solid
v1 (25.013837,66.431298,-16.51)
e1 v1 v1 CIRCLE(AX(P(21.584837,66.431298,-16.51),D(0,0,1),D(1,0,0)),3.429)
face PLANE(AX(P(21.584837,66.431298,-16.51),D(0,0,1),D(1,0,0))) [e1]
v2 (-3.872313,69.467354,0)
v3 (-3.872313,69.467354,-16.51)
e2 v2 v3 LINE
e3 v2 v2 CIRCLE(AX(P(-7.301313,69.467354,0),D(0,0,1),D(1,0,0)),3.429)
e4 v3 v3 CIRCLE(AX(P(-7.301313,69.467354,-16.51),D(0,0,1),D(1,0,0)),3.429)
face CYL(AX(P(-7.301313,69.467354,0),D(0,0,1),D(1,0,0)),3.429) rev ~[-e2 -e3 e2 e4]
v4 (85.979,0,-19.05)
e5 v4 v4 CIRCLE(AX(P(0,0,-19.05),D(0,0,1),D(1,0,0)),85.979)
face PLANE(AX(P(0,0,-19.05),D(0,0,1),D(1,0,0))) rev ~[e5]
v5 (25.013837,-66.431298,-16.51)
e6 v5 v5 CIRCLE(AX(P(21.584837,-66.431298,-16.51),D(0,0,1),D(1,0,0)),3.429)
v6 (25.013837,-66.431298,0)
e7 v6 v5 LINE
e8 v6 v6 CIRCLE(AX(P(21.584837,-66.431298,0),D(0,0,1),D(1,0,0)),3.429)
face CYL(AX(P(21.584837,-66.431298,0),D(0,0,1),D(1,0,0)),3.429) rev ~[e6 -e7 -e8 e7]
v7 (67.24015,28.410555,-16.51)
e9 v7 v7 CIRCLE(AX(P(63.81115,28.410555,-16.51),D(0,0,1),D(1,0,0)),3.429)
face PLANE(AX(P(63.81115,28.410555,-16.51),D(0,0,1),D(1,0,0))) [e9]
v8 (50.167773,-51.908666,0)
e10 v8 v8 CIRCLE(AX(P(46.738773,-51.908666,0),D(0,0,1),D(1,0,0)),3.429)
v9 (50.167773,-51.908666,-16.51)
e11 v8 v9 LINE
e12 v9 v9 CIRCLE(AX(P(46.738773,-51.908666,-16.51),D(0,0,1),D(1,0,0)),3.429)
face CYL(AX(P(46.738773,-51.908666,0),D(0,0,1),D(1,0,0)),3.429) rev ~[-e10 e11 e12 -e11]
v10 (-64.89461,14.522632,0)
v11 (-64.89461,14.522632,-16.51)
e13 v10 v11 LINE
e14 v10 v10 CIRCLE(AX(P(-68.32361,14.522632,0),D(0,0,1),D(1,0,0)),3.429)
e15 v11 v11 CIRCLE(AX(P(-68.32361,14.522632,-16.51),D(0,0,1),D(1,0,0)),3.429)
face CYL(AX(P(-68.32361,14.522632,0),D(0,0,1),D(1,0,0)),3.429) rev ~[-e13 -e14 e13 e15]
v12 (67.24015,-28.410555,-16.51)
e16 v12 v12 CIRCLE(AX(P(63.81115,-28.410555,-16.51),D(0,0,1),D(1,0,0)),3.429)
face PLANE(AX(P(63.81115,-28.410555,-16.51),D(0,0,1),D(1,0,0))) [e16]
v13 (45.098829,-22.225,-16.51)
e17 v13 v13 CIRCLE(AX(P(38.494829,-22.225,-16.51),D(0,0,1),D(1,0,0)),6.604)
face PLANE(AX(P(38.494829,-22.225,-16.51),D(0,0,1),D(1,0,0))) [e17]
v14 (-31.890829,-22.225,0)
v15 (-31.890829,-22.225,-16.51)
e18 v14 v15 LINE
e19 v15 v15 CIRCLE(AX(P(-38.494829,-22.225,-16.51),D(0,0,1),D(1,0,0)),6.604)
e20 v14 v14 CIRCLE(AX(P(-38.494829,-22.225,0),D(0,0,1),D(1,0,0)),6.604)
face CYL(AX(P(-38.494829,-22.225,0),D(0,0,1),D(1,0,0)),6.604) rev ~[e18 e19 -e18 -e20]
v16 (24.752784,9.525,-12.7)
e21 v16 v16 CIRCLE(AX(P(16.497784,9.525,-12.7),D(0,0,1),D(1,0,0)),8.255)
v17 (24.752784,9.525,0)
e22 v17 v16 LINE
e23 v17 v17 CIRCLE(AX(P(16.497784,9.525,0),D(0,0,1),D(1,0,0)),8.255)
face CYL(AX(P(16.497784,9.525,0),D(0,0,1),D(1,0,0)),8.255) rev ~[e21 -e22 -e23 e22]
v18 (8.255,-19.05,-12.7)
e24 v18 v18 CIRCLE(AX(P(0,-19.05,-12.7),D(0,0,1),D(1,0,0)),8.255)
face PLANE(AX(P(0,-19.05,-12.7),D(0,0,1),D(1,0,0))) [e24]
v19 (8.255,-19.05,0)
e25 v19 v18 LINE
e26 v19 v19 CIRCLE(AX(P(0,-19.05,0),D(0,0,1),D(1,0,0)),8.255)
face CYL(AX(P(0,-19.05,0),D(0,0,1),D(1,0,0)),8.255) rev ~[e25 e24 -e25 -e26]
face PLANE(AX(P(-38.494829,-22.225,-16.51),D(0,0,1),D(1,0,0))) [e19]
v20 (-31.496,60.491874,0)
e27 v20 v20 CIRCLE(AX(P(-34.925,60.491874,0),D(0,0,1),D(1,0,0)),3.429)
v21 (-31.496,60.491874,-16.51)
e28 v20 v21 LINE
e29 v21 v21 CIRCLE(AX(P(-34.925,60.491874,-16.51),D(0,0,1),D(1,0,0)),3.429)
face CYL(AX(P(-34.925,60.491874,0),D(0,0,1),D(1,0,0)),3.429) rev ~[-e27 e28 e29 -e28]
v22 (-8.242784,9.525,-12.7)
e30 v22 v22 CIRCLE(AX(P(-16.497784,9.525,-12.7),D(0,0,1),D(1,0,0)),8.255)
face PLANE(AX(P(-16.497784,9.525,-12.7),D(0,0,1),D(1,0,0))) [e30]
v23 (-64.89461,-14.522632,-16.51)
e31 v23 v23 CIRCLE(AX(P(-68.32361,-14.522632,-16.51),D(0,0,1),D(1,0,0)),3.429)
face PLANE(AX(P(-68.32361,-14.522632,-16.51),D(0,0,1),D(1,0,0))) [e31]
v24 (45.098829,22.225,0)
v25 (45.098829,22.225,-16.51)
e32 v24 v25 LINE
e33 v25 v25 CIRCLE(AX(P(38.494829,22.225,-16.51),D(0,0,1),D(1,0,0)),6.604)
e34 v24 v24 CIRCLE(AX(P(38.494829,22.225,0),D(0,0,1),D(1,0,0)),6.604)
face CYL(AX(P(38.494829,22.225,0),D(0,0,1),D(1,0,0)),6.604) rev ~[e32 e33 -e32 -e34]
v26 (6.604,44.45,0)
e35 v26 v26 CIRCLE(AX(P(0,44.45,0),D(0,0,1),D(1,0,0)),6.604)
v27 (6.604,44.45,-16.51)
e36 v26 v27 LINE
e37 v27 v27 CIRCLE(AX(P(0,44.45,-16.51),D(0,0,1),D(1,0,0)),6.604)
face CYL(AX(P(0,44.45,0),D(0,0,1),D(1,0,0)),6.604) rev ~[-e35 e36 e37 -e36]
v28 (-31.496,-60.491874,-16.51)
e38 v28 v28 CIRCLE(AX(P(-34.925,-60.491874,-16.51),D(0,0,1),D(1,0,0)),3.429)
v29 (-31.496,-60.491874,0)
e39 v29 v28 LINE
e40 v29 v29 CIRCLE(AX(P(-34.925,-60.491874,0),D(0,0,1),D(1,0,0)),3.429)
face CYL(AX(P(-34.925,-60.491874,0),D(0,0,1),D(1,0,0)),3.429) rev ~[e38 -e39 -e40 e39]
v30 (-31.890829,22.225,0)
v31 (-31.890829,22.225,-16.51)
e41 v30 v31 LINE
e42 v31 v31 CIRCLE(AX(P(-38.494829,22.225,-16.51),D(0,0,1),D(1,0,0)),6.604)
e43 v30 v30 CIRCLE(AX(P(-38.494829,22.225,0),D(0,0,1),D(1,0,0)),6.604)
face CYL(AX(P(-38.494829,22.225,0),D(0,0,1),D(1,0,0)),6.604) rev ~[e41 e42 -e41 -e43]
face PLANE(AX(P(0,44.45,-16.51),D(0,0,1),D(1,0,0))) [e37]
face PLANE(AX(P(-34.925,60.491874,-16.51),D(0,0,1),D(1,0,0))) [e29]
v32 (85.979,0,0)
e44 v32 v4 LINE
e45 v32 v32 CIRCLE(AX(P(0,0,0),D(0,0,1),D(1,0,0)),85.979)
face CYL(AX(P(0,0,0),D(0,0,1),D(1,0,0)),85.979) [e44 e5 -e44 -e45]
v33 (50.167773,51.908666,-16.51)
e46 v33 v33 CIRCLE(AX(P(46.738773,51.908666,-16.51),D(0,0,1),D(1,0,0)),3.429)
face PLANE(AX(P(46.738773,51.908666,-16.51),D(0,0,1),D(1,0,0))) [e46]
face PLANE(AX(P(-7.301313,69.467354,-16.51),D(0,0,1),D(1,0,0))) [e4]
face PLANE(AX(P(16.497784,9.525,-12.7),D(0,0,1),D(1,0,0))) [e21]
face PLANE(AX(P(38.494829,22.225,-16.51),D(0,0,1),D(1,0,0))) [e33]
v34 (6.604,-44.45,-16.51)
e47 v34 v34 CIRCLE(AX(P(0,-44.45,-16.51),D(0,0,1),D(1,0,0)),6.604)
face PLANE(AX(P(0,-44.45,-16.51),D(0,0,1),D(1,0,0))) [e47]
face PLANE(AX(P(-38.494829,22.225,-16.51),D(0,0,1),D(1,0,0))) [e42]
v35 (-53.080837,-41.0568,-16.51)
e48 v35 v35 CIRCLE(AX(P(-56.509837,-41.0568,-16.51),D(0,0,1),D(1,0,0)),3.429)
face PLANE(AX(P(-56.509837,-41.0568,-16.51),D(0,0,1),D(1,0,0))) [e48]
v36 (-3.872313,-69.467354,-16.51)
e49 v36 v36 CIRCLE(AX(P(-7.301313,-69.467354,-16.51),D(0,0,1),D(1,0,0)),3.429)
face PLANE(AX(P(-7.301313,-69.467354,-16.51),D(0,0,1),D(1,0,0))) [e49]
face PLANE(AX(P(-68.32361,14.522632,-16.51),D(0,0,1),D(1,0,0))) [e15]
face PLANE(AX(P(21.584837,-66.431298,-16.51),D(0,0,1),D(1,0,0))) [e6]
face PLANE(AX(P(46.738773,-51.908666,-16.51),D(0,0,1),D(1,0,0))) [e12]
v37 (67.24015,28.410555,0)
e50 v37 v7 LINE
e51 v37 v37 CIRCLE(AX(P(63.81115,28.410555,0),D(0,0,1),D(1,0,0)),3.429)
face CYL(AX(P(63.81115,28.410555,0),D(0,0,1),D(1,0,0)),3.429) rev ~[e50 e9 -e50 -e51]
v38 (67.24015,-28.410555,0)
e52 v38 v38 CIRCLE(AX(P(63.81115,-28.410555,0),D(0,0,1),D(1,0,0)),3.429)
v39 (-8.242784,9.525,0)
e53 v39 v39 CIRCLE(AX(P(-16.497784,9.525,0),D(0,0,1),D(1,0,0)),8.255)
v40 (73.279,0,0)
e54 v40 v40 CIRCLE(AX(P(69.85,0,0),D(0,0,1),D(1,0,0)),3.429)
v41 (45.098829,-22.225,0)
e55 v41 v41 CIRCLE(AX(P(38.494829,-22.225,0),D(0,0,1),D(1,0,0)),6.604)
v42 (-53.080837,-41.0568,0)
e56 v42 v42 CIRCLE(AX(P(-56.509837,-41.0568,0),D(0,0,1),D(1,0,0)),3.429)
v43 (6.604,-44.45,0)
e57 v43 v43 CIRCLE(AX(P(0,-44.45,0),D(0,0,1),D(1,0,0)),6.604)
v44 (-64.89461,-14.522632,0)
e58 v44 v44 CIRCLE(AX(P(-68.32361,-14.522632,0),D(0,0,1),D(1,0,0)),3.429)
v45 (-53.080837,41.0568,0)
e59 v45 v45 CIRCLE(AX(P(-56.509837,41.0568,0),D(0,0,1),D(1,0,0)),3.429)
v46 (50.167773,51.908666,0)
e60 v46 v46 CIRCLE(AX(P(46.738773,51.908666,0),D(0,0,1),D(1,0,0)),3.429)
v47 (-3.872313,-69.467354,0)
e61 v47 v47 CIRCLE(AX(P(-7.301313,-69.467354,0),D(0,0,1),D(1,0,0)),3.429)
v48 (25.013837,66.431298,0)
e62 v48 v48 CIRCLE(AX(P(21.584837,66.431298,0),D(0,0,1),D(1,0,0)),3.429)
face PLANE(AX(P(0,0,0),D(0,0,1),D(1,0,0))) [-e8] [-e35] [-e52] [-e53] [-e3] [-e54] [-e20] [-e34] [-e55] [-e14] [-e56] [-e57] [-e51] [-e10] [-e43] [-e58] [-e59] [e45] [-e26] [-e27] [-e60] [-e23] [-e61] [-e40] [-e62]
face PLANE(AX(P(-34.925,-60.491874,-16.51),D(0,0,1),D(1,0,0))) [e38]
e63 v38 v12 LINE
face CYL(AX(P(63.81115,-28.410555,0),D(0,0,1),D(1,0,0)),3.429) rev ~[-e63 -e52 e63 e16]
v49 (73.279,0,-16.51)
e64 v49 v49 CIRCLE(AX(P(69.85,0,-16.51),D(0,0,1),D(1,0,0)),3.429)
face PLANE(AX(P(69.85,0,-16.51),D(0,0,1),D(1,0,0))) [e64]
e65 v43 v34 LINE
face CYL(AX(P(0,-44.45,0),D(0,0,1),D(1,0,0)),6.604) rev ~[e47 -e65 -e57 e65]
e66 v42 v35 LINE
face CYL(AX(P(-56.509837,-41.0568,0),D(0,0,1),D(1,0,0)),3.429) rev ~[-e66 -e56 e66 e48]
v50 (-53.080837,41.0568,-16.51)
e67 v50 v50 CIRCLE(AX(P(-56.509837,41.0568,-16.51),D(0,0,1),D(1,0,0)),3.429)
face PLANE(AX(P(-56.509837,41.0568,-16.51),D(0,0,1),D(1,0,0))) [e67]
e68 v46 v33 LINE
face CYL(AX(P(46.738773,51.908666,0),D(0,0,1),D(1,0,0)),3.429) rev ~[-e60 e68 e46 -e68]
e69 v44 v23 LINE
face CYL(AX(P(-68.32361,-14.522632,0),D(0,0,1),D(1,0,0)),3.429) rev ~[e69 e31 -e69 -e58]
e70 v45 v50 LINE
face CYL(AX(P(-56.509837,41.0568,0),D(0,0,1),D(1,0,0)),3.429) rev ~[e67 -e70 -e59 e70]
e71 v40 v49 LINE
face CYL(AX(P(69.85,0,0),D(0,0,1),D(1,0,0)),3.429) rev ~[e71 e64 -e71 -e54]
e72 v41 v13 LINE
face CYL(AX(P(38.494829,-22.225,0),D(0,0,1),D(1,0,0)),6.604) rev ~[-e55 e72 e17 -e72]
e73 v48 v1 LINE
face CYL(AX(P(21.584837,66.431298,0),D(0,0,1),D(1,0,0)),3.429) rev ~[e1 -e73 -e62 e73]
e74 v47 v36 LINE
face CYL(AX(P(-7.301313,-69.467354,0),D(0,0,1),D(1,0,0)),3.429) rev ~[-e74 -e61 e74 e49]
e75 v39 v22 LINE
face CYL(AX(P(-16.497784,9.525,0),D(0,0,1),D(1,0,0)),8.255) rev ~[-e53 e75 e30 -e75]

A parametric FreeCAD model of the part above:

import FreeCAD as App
import Part
import Sketcher

V = App.Vector
Q = App.Units.Quantity

doc = App.newDocument("Part")
params = doc.addObject("Spreadsheet::Sheet", "Params")
for row, (alias, value) in enumerate([
    ("sketch1_diameter", "6.77 in"),
    ("pad1_length", "0.75 in"),
    ("sketch2_diameter", "0.27 in"),
    ("sketch2_diameter2", "0.52 in"),
    ("pocket1_length", "0.65 in"),
    ("sketch3_diameter", "0.65 in"),
    ("pocket2_length", "0.5 in"),
], start=1):
    params.set(f"A{row}", alias)
    params.set(f"B{row}", "=" + value)
    params.setAlias(f"B{row}", alias)

body = doc.addObject("PartDesign::Body", "Body")

# Sketch on XY plane
sketch1 = body.newObject("Sketcher::SketchObject", "Sketch")
sketch1.AttachmentSupport = (doc.getObject("XY_Plane"), [""])
sketch1.MapMode = "FlatFace"
sketch1.addGeometry(Part.Circle(V(0, 0, 0), V(0, 0, 1), 86), False)
sketch1.addConstraint(Sketcher.Constraint("Coincident", 0, 3, -1, 1))
sketch1.addConstraint(Sketcher.Constraint("Diameter", 0, Q("6.77 in")))
sketch1.setExpression("Constraints[1]", "Params.sketch1_diameter")
pad1 = body.newObject("PartDesign::Pad", "Pad")
pad1.Profile = sketch1
pad1.setExpression("Length", "Params.pad1_length")
pad1.Reversed = True

# Sketch on XY plane
sketch2 = body.newObject("Sketcher::SketchObject", "Sketch001")
sketch2.AttachmentSupport = (doc.getObject("XY_Plane"), [""])
sketch2.MapMode = "FlatFace"
sketch2.addGeometry(Part.Circle(V(-68.3, 14.5, 0), V(0, 0, 1), 3.4), False)
sketch2.addGeometry(Part.Circle(V(-68.3, -14.5, 0), V(0, 0, 1), 3.4), False)
sketch2.addGeometry(Part.Circle(V(-56.5, -41.1, 0), V(0, 0, 1), 3.4), False)
sketch2.addGeometry(Part.Circle(V(-34.9, -60.5, 0), V(0, 0, 1), 3.4), False)
sketch2.addGeometry(Part.Circle(V(-7.3, -69.5, 0), V(0, 0, 1), 3.4), False)
sketch2.addGeometry(Part.Circle(V(21.6, -66.4, 0), V(0, 0, 1), 3.4), False)
sketch2.addGeometry(Part.Circle(V(46.7, -51.9, 0), V(0, 0, 1), 3.4), False)
sketch2.addGeometry(Part.Circle(V(63.8, -28.4, 0), V(0, 0, 1), 3.4), False)
sketch2.addGeometry(Part.Circle(V(69.8, 0, 0), V(0, 0, 1), 3.4), False)
sketch2.addGeometry(Part.Circle(V(63.8, 28.4, 0), V(0, 0, 1), 3.4), False)
sketch2.addGeometry(Part.Circle(V(46.7, 51.9, 0), V(0, 0, 1), 3.4), False)
sketch2.addGeometry(Part.Circle(V(21.6, 66.4, 0), V(0, 0, 1), 3.4), False)
sketch2.addGeometry(Part.Circle(V(-7.3, 69.5, 0), V(0, 0, 1), 3.4), False)
sketch2.addGeometry(Part.Circle(V(-34.9, 60.5, 0), V(0, 0, 1), 3.4), False)
sketch2.addGeometry(Part.Circle(V(-56.5, 41.1, 0), V(0, 0, 1), 3.4), False)
sketch2.addGeometry(Part.Circle(V(-38.5, -22.2, 0), V(0, 0, 1), 6.6), False)
sketch2.addGeometry(Part.Circle(V(0, -44.5, 0), V(0, 0, 1), 6.6), False)
sketch2.addGeometry(Part.Circle(V(38.5, -22.2, 0), V(0, 0, 1), 6.6), False)
sketch2.addGeometry(Part.Circle(V(38.5, 22.2, 0), V(0, 0, 1), 6.6), False)
sketch2.addGeometry(Part.Circle(V(0, 44.5, 0), V(0, 0, 1), 6.6), False)
sketch2.addGeometry(Part.Circle(V(-38.5, 22.2, 0), V(0, 0, 1), 6.6), False)
sketch2.addConstraint(Sketcher.Constraint("Equal", 0, 1))
sketch2.addConstraint(Sketcher.Constraint("Equal", 1, 2))
sketch2.addConstraint(Sketcher.Constraint("Equal", 2, 3))
sketch2.addConstraint(Sketcher.Constraint("Equal", 3, 4))
sketch2.addConstraint(Sketcher.Constraint("Equal", 4, 5))
sketch2.addConstraint(Sketcher.Constraint("Equal", 5, 6))
sketch2.addConstraint(Sketcher.Constraint("Equal", 6, 7))
sketch2.addConstraint(Sketcher.Constraint("Equal", 7, 8))
sketch2.addConstraint(Sketcher.Constraint("Equal", 8, 9))
sketch2.addConstraint(Sketcher.Constraint("Equal", 9, 10))
sketch2.addConstraint(Sketcher.Constraint("Equal", 10, 11))
sketch2.addConstraint(Sketcher.Constraint("Equal", 11, 12))
sketch2.addConstraint(Sketcher.Constraint("Equal", 12, 13))
sketch2.addConstraint(Sketcher.Constraint("Equal", 13, 14))
sketch2.addConstraint(Sketcher.Constraint("Equal", 15, 16))
sketch2.addConstraint(Sketcher.Constraint("Equal", 16, 17))
sketch2.addConstraint(Sketcher.Constraint("Equal", 17, 18))
sketch2.addConstraint(Sketcher.Constraint("Equal", 18, 19))
sketch2.addConstraint(Sketcher.Constraint("Equal", 19, 20))
sketch2.addConstraint(Sketcher.Constraint("Symmetric", 15, 3, 18, 3, -1, 1))
sketch2.addConstraint(Sketcher.Constraint("Symmetric", 16, 3, 19, 3, -1, 1))
sketch2.addConstraint(Sketcher.Constraint("Symmetric", 17, 3, 20, 3, -1, 1))
sketch2.addConstraint(Sketcher.Constraint("Symmetric", 15, 3, 17, 3, -2))
sketch2.addConstraint(Sketcher.Constraint("Symmetric", 0, 3, 1, 3, -1))
sketch2.addConstraint(Sketcher.Constraint("Symmetric", 7, 3, 9, 3, -1))
sketch2.addConstraint(Sketcher.Constraint("Symmetric", 6, 3, 10, 3, -1))
sketch2.addConstraint(Sketcher.Constraint("Symmetric", 5, 3, 11, 3, -1))
sketch2.addConstraint(Sketcher.Constraint("Symmetric", 4, 3, 12, 3, -1))
sketch2.addConstraint(Sketcher.Constraint("Symmetric", 3, 3, 13, 3, -1))
sketch2.addConstraint(Sketcher.Constraint("Symmetric", 2, 3, 14, 3, -1))
sketch2.addConstraint(Sketcher.Constraint("PointOnObject", 8, 3, -1))
sketch2.addConstraint(Sketcher.Constraint("PointOnObject", 16, 3, -2))
sketch2.addConstraint(Sketcher.Constraint("Diameter", 0, Q("0.27 in")))
sketch2.addConstraint(Sketcher.Constraint("Diameter", 15, Q("0.52 in")))
sketch2.addConstraint(Sketcher.Constraint("DistanceX", -1, 1, 8, 3, Q("2.75 in")))
sketch2.addConstraint(Sketcher.Constraint("DistanceY", 16, 3, -1, 1, Q("1.75 in")))
sketch2.addConstraint(Sketcher.Constraint("DistanceY", 17, 3, 18, 3, Q("1.75 in")))
sketch2.addConstraint(Sketcher.Constraint("DistanceX", 3, 3, -1, 1, Q("1.375 in")))
sketch2.addConstraint(Sketcher.Constraint("DistanceY", 2, 3, -1, 1, Q("41.0568 mm")))
sketch2.addConstraint(Sketcher.Constraint("DistanceY", 5, 3, -1, 1, Q("66.431298 mm")))
sketch2.addConstraint(Sketcher.Constraint("DistanceY", 4, 3, 7, 3, Q("41.056799 mm")))
sketch2.addConstraint(Sketcher.Constraint("DistanceX", 0, 3, -1, 1, Q("68.32361 mm")))
sketch2.addConstraint(Sketcher.Constraint("DistanceX", -1, 1, 7, 3, Q("63.81115 mm")))
sketch2.addConstraint(Sketcher.Constraint("DistanceX", 15, 3, -1, 1, Q("38.494829 mm")))
sketch2.addConstraint(Sketcher.Constraint("DistanceY", 2, 3, 1, 3, Q("26.534168 mm")))
sketch2.addConstraint(Sketcher.Constraint("DistanceY", 4, 3, 3, 3, Q("8.97548 mm")))
sketch2.addConstraint(Sketcher.Constraint("DistanceX", 4, 3, 5, 3, Q("28.88615 mm")))
sketch2.addConstraint(Sketcher.Constraint("DistanceY", 4, 3, 6, 3, Q("17.558688 mm")))
sketch2.addConstraint(Sketcher.Constraint("DistanceX", 2, 3, 6, 3, Q("103.24861 mm")))
sketch2.addConstraint(Sketcher.Constraint("DistanceY", 7, 3, 9, 3, Q("56.82111 mm")))
sketch2.addConstraint(Sketcher.Constraint("DistanceX", 2, 3, -1, 1, Q("56.509837 mm")))
sketch2.addConstraint(Sketcher.Constraint("DistanceX", 4, 3, -1, 1, Q("7.301313 mm")))
sketch2.setExpression("Constraints[32]", "Params.sketch2_diameter")
sketch2.setExpression("Constraints[33]", "Params.sketch2_diameter2")
pocket1 = body.newObject("PartDesign::Pocket", "Pocket")
pocket1.Profile = sketch2
pocket1.setExpression("Length", "Params.pocket1_length")

# Sketch on XY plane
sketch3 = body.newObject("Sketcher::SketchObject", "Sketch002")
sketch3.AttachmentSupport = (doc.getObject("XY_Plane"), [""])
sketch3.MapMode = "FlatFace"
sketch3.addGeometry(Part.Circle(V(-16, 10, 0), V(0, 0, 1), 8), False)
sketch3.addGeometry(Part.Circle(V(0, -19, 0), V(0, 0, 1), 8), False)
sketch3.addGeometry(Part.Circle(V(16, 10, 0), V(0, 0, 1), 8), False)
sketch3.addConstraint(Sketcher.Constraint("Equal", 0, 1))
sketch3.addConstraint(Sketcher.Constraint("Equal", 1, 2))
sketch3.addConstraint(Sketcher.Constraint("Symmetric", 0, 3, 2, 3, -2))
sketch3.addConstraint(Sketcher.Constraint("PointOnObject", 1, 3, -2))
sketch3.addConstraint(Sketcher.Constraint("Diameter", 0, Q("0.65 in")))
sketch3.addConstraint(Sketcher.Constraint("DistanceY", 1, 3, -1, 1, Q("0.75 in")))
sketch3.addConstraint(Sketcher.Constraint("DistanceY", -1, 1, 0, 3, Q("0.375 in")))
sketch3.addConstraint(Sketcher.Constraint("DistanceX", 0, 3, -1, 1, Q("16.497784 mm")))
sketch3.setExpression("Constraints[4]", "Params.sketch3_diameter")
pocket2 = body.newObject("PartDesign::Pocket", "Pocket001")
pocket2.Profile = sketch3
pocket2.setExpression("Length", "Params.pocket2_length")

doc.recompute()
